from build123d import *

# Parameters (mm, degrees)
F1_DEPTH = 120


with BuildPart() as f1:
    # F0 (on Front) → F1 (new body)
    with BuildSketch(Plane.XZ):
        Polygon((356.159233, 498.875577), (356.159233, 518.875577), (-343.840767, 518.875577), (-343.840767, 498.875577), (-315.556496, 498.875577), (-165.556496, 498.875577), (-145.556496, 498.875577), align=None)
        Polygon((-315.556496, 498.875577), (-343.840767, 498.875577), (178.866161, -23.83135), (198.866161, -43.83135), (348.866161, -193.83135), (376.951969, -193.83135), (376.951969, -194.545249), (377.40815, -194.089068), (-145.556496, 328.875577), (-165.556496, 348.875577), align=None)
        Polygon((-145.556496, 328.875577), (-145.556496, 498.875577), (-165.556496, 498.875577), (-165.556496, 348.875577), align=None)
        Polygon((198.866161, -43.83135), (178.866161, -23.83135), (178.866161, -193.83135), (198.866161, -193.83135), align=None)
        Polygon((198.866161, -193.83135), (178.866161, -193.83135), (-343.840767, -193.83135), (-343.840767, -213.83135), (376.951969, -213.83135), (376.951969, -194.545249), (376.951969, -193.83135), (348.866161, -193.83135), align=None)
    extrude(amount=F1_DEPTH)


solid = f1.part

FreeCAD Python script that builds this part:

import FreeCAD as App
import Part
import Sketcher

V = App.Vector
Q = App.Units.Quantity


def add_polygon(sketch, points):
    """Adds a closed chain of lines whose ends are joined by coincident constraints."""
    first, n = sketch.GeometryCount, len(points)
    for a, b in zip(points, points[1:] + points[:1]):
        sketch.addGeometry(Part.LineSegment(App.Vector(*a, 0), App.Vector(*b, 0)), False)
    for i in range(n):
        sketch.addConstraint(Sketcher.Constraint("Coincident", first + i, 2, first + (i + 1) % n, 1))

doc = App.newDocument("Part")
body = doc.addObject("PartDesign::Body", "Body")

sketch1 = body.newObject("Sketcher::SketchObject", "Sketch")
sketch1.AttachmentSupport = (doc.getObject("XZ_Plane"), [""])
sketch1.MapMode = "FlatFace"
add_polygon(sketch1, [(356.2, 498.9), (356.2, 518.9), (-343.8, 518.9), (-343.8, 498.9), (178.9, -23.8), (178.9, -193.8), (-343.8, -193.8), (-343.8, -213.8), (377, -213.8), (377, -194.5), (377.4, -194.1), (-145.6, 328.9), (-145.6, 498.9)])
add_polygon(sketch1, [(198.9, -193.8), (198.9, -43.8), (348.9, -193.8)])
add_polygon(sketch1, [(-165.6, 348.9), (-315.6, 498.9), (-165.6, 498.9)])
sketch1.addConstraint([
    Sketcher.Constraint("Vertical", 0),
    Sketcher.Constraint("Horizontal", 1),
    Sketcher.Constraint("Vertical", 2),
    Sketcher.Constraint("Vertical", 4),
    Sketcher.Constraint("Horizontal", 5),
    Sketcher.Constraint("Vertical", 6),
    Sketcher.Constraint("Horizontal", 7),
    Sketcher.Constraint("Vertical", 8),
    Sketcher.Constraint("Vertical", 11),
    Sketcher.Constraint("Horizontal", 12),
    Sketcher.Constraint("Vertical", 13),
    Sketcher.Constraint("Horizontal", 15),
    Sketcher.Constraint("Horizontal", 17),
    Sketcher.Constraint("Vertical", 18),
    Sketcher.Constraint("Perpendicular", 3, 9),
    Sketcher.Constraint("Parallel", 3, 10),
    Sketcher.Constraint("Parallel", 10, 14),
    Sketcher.Constraint("Parallel", 14, 16),
    Sketcher.Constraint("Horizontal", 2, 2, 11, 2),
    Sketcher.Constraint("Horizontal", 5, 2, 14, 2),
    Sketcher.Constraint("Horizontal", 12, 2, 16, 2),
    Sketcher.Constraint("Vertical", 2, 2, 5, 2),
    Sketcher.Constraint("Equal", 15, 17),
    Sketcher.Constraint("Equal", 2, 6),
    Sketcher.Constraint("Equal", 4, 11),
    Sketcher.Constraint("Equal", 17, 13),
    Sketcher.Constraint("DistanceX", 1, 2, 1, 1, Q("700 mm")),
    Sketcher.Constraint("DistanceX", 15, 2, 15, 1, Q("150 mm")),
    Sketcher.Constraint("DistanceY", 0, 1, 0, 2, Q("20 mm")),
    Sketcher.Constraint("DistanceY", 4, 2, 4, 1, Q("170 mm")),
    Sketcher.Constraint("DistanceX", 3, 2, 13, 2, Q("20 mm")),
    Sketcher.Constraint("DistanceX", 16, 2, 11, 2, Q("170 mm")),
    Sketcher.Constraint("DistanceY", 8, 1, 8, 2, Q("19.286101 mm")),
    Sketcher.Constraint("DistanceX", 5, 2, 5, 1, Q("522.706928 mm")),
    Sketcher.Constraint("DistanceX", 12, 1, 12, 2, Q("501.715729 mm")),
    Sketcher.Constraint("DistanceX", 7, 1, 7, 2, Q("720.792736 mm")),
    Sketcher.Constraint("DistanceX", -1, 1, 3, 2, Q("178.866161 mm")),
    Sketcher.Constraint("DistanceY", 3, 2, -1, 1, Q("23.83135 mm")),
])
pad1 = body.newObject("PartDesign::Pad", "Pad")
pad1.Profile = sketch1
pad1.Length = 120

doc.recompute()
